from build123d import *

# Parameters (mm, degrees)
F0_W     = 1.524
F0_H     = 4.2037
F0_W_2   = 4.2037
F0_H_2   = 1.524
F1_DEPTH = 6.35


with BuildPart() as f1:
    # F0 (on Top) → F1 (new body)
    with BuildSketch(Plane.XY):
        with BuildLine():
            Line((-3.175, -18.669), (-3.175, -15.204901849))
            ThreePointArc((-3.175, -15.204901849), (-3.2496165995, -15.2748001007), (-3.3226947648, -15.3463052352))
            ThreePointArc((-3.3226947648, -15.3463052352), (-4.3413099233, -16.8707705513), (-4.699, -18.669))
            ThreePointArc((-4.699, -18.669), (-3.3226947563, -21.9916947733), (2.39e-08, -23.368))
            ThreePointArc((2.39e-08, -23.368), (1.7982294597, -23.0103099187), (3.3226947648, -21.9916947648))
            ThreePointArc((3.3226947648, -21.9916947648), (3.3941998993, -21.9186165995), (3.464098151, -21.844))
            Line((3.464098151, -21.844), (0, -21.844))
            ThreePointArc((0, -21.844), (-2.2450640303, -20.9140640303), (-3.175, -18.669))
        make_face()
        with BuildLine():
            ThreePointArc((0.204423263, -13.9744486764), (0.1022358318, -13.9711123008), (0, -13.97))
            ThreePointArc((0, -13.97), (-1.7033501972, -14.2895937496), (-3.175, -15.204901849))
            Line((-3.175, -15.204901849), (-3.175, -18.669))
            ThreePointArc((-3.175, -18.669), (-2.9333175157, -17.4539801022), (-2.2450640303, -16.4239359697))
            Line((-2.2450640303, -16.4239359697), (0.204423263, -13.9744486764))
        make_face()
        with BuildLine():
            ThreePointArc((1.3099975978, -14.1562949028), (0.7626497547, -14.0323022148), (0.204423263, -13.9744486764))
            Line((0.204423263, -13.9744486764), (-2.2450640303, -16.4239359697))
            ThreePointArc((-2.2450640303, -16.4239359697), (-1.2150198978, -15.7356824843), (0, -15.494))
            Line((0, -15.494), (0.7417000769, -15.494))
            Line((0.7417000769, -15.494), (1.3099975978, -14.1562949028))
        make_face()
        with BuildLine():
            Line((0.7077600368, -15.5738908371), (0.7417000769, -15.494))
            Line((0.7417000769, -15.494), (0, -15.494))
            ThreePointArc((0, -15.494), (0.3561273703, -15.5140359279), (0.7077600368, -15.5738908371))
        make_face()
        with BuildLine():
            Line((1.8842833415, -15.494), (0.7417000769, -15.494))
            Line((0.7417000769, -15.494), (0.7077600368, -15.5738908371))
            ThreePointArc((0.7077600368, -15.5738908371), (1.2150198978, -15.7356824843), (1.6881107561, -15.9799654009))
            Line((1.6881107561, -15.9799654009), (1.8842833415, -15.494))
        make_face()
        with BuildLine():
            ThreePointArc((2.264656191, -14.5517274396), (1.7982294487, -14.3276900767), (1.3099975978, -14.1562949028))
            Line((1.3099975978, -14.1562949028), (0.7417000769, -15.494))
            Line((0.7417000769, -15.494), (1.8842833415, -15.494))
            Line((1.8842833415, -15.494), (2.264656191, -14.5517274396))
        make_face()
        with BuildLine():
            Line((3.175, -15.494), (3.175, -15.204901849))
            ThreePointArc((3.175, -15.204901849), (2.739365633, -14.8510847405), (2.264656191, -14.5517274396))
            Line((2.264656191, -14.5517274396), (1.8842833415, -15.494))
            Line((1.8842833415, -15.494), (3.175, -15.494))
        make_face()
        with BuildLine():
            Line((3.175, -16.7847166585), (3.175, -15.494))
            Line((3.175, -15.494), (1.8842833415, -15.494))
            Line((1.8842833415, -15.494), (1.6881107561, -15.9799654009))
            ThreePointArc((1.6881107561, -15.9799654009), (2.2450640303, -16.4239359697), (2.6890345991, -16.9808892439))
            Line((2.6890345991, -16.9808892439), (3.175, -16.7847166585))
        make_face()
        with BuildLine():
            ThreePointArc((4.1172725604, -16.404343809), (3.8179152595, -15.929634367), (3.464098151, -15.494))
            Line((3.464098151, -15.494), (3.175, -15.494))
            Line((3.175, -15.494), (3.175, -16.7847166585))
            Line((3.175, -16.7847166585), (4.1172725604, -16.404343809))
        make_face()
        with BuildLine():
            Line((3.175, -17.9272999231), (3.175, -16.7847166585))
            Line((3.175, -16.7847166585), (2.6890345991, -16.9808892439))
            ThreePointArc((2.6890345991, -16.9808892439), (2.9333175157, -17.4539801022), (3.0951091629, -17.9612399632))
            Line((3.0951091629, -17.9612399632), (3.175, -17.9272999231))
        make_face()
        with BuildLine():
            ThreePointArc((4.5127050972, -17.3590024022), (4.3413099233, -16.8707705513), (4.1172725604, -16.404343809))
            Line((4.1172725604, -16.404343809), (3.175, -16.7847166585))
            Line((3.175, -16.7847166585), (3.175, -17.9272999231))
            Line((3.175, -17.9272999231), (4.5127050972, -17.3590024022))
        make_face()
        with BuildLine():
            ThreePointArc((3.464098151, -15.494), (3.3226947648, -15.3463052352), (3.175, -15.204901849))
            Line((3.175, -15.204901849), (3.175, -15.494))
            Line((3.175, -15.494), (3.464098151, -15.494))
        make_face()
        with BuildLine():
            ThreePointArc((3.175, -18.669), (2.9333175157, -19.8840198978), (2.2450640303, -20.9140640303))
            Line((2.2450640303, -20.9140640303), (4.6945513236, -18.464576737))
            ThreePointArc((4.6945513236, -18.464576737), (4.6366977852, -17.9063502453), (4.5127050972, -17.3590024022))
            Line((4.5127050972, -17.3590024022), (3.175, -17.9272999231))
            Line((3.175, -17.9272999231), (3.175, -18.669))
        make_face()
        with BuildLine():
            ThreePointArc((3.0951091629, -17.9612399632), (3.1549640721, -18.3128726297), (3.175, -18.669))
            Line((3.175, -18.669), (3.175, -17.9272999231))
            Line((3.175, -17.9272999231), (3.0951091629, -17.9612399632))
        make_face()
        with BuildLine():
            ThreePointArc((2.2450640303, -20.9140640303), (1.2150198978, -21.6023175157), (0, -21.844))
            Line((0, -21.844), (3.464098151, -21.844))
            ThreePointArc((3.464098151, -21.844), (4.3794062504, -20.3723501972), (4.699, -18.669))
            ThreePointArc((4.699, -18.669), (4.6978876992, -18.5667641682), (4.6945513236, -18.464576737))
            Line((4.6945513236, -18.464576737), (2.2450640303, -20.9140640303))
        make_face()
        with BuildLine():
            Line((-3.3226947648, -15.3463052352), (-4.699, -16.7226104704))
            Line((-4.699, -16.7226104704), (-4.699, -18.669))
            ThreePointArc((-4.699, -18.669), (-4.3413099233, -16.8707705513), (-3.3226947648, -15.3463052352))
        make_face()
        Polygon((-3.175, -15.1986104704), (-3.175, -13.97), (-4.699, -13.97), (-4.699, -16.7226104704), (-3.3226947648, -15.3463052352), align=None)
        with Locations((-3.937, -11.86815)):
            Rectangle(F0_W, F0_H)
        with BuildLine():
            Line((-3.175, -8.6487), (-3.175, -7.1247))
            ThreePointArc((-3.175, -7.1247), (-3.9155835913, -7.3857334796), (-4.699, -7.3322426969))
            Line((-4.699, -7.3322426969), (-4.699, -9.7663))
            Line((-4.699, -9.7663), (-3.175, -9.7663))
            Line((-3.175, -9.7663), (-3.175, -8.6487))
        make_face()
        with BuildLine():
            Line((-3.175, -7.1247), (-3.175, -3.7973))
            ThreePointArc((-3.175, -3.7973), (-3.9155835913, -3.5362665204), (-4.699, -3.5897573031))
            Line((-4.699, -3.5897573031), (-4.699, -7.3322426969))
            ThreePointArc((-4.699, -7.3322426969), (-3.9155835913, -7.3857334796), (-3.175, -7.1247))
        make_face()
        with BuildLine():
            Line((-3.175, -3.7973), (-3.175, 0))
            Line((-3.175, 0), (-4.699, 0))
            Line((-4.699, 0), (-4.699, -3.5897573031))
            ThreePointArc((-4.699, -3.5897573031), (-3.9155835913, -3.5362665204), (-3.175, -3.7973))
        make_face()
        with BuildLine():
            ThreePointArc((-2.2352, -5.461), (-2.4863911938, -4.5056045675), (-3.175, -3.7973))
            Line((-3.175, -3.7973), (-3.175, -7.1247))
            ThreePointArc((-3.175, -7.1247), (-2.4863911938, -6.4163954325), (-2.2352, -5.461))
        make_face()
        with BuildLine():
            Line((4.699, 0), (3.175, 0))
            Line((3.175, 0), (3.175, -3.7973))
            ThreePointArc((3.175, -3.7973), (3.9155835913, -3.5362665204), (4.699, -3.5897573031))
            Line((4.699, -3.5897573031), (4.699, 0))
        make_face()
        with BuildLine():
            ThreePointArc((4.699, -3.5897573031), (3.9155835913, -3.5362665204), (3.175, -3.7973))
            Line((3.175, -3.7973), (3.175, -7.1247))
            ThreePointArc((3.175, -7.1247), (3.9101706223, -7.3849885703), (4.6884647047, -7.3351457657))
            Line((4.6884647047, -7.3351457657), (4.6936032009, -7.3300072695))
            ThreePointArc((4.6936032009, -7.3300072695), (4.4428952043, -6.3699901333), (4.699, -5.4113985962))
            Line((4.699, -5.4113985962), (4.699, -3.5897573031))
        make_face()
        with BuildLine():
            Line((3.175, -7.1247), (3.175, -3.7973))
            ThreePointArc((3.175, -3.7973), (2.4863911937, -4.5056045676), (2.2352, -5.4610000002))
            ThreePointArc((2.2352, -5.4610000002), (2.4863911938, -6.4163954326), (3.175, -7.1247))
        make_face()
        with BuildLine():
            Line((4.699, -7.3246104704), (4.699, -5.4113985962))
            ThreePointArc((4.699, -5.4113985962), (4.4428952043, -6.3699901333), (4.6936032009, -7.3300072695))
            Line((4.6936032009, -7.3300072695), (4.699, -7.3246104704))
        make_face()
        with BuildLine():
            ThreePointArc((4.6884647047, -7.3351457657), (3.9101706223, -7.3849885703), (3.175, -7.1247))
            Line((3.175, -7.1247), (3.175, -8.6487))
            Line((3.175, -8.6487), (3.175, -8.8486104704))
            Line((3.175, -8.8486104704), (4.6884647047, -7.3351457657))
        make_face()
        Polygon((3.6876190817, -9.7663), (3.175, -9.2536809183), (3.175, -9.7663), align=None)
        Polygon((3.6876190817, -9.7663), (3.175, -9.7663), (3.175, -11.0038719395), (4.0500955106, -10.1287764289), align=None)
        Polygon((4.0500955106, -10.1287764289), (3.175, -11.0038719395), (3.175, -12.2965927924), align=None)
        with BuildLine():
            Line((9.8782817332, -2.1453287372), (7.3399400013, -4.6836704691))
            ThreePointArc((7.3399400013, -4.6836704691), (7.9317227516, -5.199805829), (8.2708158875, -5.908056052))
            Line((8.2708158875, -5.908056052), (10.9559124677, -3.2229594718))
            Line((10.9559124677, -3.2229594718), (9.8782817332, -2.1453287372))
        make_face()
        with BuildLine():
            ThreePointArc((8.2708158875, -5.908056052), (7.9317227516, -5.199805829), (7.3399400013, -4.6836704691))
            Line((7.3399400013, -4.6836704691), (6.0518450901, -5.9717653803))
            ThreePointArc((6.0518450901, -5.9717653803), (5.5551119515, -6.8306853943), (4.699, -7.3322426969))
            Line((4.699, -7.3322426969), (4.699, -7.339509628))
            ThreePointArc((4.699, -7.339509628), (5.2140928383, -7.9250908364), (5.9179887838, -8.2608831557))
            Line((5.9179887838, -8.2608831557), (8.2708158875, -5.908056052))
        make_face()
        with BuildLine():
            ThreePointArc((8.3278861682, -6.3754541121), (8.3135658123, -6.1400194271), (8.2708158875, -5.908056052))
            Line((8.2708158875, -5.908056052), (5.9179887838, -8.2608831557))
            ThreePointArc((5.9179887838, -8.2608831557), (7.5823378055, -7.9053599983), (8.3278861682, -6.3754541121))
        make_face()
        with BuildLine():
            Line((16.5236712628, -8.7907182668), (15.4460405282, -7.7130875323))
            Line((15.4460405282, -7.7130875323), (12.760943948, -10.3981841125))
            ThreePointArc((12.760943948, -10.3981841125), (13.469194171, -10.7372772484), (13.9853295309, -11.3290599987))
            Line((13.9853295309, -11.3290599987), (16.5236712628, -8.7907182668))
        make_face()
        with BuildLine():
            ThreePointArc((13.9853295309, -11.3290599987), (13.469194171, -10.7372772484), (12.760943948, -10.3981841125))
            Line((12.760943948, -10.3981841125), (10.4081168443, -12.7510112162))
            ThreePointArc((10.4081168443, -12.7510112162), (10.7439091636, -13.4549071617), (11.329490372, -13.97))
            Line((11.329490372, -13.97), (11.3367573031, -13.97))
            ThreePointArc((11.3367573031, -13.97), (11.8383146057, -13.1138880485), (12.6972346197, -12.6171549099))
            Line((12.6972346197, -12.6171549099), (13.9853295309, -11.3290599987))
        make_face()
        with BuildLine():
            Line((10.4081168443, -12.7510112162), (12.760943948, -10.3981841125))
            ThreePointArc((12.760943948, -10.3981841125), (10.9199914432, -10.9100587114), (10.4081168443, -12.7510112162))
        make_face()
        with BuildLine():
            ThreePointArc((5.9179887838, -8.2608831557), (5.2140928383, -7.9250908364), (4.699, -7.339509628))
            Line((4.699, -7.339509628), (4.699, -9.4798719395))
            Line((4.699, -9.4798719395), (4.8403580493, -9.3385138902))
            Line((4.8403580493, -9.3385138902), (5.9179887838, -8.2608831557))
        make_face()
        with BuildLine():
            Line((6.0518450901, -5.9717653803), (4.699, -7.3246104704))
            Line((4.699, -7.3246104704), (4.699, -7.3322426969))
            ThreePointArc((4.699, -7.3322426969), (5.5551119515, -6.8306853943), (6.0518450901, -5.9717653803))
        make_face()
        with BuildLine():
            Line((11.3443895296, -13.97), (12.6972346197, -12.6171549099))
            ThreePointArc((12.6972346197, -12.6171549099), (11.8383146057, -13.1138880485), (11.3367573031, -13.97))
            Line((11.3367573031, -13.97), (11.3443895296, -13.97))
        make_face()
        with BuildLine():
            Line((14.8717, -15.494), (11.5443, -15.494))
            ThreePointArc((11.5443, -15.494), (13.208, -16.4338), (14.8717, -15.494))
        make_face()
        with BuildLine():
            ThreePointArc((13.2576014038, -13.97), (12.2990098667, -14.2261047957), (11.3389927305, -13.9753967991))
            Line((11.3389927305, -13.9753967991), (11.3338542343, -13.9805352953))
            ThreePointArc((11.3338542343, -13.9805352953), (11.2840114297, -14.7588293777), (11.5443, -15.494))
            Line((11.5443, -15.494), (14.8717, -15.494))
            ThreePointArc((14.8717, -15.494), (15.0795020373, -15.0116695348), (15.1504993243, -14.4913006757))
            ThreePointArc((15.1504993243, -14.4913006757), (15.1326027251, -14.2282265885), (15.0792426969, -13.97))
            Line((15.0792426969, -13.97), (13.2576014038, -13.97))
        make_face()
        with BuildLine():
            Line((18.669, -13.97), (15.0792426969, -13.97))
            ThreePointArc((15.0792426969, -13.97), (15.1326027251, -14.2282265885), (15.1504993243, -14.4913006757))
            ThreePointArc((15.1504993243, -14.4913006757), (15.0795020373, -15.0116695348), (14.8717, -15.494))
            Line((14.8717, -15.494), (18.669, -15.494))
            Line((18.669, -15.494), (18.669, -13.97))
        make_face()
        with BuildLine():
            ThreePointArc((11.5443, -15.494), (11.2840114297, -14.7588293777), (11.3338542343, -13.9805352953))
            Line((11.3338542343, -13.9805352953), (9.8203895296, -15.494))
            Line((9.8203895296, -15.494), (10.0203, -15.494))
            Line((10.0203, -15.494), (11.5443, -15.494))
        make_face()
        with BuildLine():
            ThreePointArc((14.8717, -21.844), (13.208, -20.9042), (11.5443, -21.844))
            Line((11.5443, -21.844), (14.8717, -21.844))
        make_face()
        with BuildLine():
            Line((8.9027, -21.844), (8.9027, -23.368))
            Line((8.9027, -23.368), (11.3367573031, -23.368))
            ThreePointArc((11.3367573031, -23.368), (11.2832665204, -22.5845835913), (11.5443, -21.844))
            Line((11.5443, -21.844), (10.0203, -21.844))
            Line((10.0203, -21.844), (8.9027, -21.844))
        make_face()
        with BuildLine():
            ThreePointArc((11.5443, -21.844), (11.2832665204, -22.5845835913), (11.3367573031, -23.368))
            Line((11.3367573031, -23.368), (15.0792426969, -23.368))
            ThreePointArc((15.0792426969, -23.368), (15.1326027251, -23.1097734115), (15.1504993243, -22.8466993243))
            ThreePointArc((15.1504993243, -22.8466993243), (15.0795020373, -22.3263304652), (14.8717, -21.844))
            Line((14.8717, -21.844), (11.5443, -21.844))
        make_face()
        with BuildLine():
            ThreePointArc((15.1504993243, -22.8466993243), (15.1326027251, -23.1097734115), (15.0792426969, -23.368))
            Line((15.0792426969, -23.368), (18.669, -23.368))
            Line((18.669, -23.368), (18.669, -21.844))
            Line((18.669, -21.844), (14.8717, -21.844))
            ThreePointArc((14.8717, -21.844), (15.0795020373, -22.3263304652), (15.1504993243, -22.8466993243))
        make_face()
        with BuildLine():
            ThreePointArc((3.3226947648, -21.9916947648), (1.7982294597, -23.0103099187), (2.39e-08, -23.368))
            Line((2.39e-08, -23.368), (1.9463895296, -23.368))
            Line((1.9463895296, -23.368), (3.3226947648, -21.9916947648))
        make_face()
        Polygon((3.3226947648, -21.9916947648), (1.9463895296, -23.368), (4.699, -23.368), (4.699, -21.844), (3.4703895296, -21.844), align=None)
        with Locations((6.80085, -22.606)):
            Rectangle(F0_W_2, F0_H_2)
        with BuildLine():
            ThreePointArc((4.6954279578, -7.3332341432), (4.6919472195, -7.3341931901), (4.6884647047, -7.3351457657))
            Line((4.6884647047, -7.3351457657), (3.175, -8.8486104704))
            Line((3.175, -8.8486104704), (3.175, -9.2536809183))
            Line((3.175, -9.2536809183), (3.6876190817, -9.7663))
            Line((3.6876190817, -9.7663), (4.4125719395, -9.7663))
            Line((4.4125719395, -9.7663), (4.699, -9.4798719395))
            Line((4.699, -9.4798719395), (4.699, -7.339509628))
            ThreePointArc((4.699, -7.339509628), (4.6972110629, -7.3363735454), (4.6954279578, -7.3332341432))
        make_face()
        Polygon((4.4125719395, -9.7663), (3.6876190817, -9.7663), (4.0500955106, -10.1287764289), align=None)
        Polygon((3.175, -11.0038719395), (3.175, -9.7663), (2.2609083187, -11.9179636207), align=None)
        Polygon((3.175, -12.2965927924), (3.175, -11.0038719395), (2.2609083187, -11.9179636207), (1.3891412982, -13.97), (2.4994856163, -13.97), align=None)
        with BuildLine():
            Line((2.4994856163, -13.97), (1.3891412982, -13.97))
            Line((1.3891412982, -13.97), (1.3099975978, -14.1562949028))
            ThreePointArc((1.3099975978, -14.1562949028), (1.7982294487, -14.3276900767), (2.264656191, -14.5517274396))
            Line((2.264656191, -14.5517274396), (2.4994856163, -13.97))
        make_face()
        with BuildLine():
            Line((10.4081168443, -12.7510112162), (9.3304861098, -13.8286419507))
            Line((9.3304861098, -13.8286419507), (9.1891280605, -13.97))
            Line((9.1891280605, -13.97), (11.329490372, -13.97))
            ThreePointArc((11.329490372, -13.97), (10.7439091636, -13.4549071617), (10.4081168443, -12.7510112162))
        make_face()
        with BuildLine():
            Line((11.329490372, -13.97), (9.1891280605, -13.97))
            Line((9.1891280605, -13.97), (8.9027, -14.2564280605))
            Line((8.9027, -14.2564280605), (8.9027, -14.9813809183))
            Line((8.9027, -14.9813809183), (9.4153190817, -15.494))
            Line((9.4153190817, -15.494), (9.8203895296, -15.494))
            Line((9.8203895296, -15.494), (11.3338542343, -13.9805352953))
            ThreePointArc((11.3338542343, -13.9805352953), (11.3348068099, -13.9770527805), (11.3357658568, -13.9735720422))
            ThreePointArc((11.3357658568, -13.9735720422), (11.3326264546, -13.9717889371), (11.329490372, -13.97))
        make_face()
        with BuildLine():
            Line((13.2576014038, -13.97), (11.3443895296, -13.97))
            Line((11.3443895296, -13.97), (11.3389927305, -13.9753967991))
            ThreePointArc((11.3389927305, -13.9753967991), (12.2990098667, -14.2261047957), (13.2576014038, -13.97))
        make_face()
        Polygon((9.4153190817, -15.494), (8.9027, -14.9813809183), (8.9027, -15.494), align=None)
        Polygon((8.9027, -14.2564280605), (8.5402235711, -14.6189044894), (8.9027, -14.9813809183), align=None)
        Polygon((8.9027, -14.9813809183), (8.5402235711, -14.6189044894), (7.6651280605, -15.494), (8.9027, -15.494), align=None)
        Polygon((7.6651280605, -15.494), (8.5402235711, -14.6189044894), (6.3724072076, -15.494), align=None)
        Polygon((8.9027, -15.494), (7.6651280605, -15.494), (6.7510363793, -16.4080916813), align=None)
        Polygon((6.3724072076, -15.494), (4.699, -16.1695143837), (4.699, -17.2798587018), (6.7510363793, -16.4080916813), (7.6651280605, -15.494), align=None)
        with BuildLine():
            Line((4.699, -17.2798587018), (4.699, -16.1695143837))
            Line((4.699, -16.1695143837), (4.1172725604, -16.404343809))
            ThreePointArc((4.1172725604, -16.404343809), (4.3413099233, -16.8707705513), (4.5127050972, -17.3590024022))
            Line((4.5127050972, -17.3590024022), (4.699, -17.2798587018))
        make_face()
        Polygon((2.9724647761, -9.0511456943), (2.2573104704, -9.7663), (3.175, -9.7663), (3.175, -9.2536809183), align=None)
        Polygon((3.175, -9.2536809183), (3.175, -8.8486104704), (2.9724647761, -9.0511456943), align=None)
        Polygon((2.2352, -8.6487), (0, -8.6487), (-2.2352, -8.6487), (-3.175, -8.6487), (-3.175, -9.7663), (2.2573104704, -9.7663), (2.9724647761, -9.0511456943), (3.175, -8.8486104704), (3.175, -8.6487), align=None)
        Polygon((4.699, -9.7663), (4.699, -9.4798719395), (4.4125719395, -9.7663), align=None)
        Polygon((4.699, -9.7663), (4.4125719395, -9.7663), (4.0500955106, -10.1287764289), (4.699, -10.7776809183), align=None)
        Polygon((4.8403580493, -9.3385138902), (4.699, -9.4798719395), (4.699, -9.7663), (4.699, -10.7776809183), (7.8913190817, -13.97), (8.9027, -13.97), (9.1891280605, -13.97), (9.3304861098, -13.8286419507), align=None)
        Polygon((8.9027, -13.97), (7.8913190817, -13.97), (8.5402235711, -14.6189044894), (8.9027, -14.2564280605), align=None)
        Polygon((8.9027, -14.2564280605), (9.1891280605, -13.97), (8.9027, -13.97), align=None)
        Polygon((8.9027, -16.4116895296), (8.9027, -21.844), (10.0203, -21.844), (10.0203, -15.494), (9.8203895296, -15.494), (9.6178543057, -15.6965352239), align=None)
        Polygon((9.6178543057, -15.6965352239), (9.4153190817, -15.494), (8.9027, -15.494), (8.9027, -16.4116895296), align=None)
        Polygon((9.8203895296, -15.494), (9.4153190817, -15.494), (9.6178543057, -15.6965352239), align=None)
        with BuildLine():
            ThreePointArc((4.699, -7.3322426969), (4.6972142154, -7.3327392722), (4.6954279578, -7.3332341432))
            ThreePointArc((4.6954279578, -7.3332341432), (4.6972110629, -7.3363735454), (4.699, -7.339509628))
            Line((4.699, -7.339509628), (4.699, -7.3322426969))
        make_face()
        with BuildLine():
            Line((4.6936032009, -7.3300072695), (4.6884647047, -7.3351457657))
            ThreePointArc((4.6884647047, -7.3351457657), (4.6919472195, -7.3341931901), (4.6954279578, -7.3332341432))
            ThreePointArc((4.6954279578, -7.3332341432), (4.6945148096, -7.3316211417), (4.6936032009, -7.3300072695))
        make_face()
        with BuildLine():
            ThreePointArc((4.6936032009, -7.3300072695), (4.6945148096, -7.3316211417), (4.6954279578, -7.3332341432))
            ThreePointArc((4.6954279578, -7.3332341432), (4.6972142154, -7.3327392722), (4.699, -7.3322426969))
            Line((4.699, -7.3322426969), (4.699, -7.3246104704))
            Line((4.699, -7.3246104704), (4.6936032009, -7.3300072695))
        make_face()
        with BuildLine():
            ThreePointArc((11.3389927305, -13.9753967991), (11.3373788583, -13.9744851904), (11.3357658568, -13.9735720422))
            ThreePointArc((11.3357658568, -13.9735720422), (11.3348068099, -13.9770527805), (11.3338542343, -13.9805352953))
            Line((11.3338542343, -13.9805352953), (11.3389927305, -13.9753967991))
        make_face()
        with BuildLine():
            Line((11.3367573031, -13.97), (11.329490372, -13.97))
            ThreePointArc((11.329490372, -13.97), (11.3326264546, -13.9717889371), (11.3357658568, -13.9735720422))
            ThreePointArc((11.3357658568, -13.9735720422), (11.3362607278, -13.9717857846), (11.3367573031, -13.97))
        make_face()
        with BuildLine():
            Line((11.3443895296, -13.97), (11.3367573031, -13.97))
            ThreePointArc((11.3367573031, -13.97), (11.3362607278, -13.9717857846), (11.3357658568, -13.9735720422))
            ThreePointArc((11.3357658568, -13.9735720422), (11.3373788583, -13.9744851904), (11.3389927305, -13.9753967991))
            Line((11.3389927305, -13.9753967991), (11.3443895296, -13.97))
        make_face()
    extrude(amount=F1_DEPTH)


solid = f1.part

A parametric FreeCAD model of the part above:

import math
import FreeCAD as App
import Part
import Sketcher
from FreeCAD import Vector
Q = App.Units.Quantity

doc = App.newDocument("Part")
params = doc.addObject("Spreadsheet::Sheet", "Params")
for row, (alias, value) in enumerate([
    ("sketch1_radius", "0.185 in"),
    ("sketch1_radius2", "0.125 in"),
    ("sketch1_length", "0.06 in"),
    ("sketch1_length2", "0.25 in"),
    ("sketch1_width", "0.735 in"),
    ("pad1_length", "0.25 in"),
], start=1):
    params.set(f"A{row}", alias)
    params.set(f"B{row}", "=" + value)
    params.setAlias(f"B{row}", alias)

body = doc.addObject("PartDesign::Body", "Body")

sketch1 = body.newObject("Sketcher::SketchObject", "Sketch")
sketch1.AttachmentSupport = (doc.getObject("XY_Plane"), [""])
sketch1.MapMode = "FlatFace"
sketch1.addGeometry(Part.LineSegment(Vector(18.67, -13.97, 0), Vector(11.34, -13.97, 0)), False)
sketch1.addGeometry(Part.LineSegment(Vector(11.34, -13.97, 0), Vector(16.52, -8.79, 0)), False)
sketch1.addGeometry(Part.LineSegment(Vector(16.52, -8.79, 0), Vector(15.45, -7.71, 0)), False)
sketch1.addGeometry(Part.LineSegment(Vector(15.45, -7.71, 0), Vector(12.76, -10.4, 0)), False)
sketch1.addGeometry(Part.ArcOfCircle(Part.Circle(Vector(12.29, -12.28, 0), Vector(0, 0, 1), 1.94), math.radians(76), math.radians(194)), False)
sketch1.addGeometry(Part.LineSegment(Vector(10.41, -12.75, 0), Vector(9.33, -13.83, 0)), False)
sketch1.addGeometry(Part.LineSegment(Vector(9.33, -13.83, 0), Vector(4.84, -9.34, 0)), False)
sketch1.addGeometry(Part.LineSegment(Vector(4.84, -9.34, 0), Vector(5.92, -8.26, 0)), False)
sketch1.addGeometry(Part.ArcOfCircle(Part.Circle(Vector(6.39, -6.38, 0), Vector(0, 0, 1), 1.94), math.radians(-104), math.radians(0)), False)
sketch1.addGeometry(Part.ArcOfCircle(Part.Circle(Vector(6.39, -6.38, 0), Vector(0, 0, 1), 1.94), math.radians(0), math.radians(13.92)), False)
sketch1.addGeometry(Part.LineSegment(Vector(8.27, -5.91, 0), Vector(10.96, -3.22, 0)), False)
sketch1.addGeometry(Part.LineSegment(Vector(10.96, -3.22, 0), Vector(9.88, -2.15, 0)), False)
sketch1.addGeometry(Part.LineSegment(Vector(9.88, -2.15, 0), Vector(4.7, -7.32, 0)), False)
sketch1.addGeometry(Part.LineSegment(Vector(4.7, -7.32, 0), Vector(4.7, 0, 0)), False)
sketch1.addGeometry(Part.LineSegment(Vector(4.7, 0, 0), Vector(3.17, 0, 0)), False)
sketch1.addGeometry(Part.LineSegment(Vector(3.17, 0, 0), Vector(3.17, -3.8, 0)), False)
sketch1.addGeometry(Part.ArcOfCircle(Part.Circle(Vector(4.18, -5.46, 0), Vector(0, 0, 1), 1.94), math.radians(121), math.radians(180)), False)
sketch1.addGeometry(Part.ArcOfCircle(Part.Circle(Vector(4.18, -5.46, 0), Vector(0, 0, 1), 1.94), math.radians(180), math.radians(239)), False)
sketch1.addGeometry(Part.LineSegment(Vector(3.17, -7.12, 0), Vector(3.17, -8.65, 0)), False)
sketch1.addGeometry(Part.LineSegment(Vector(3.17, -8.65, 0), Vector(-3.17, -8.65, 0)), False)
sketch1.addGeometry(Part.LineSegment(Vector(-3.17, -8.65, 0), Vector(-3.17, -7.12, 0)), False)
sketch1.addGeometry(Part.ArcOfCircle(Part.Circle(Vector(-4.18, -5.46, 0), Vector(0, 0, 1), 1.94), math.radians(-59), math.radians(0)), False)
sketch1.addGeometry(Part.ArcOfCircle(Part.Circle(Vector(-4.18, -5.46, 0), Vector(0, 0, 1), 1.94), math.radians(0), math.radians(59)), False)
sketch1.addGeometry(Part.LineSegment(Vector(-3.17, -3.8, 0), Vector(-3.17, 0, 0)), False)
sketch1.addGeometry(Part.LineSegment(Vector(-3.17, 0, 0), Vector(-4.7, 0, 0)), False)
sketch1.addGeometry(Part.LineSegment(Vector(-4.7, 0, 0), Vector(-4.7, -18.67, 0)), False)
sketch1.addGeometry(Part.ArcOfCircle(Part.Circle(Vector(0, -18.67, 0), Vector(0, 0, 1), 4.7), math.radians(180), math.radians(270)), False)
sketch1.addGeometry(Part.LineSegment(Vector(0, -23.37, 0), Vector(18.67, -23.37, 0)), False)
sketch1.addGeometry(Part.LineSegment(Vector(18.67, -23.37, 0), Vector(18.67, -21.84, 0)), False)
sketch1.addGeometry(Part.LineSegment(Vector(18.67, -21.84, 0), Vector(14.87, -21.84, 0)), False)
sketch1.addGeometry(Part.ArcOfCircle(Part.Circle(Vector(13.21, -22.85, 0), Vector(0, 0, 1), 1.94), math.radians(31), math.radians(149)), False)
sketch1.addGeometry(Part.LineSegment(Vector(11.54, -21.84, 0), Vector(10.02, -21.84, 0)), False)
sketch1.addGeometry(Part.LineSegment(Vector(10.02, -21.84, 0), Vector(10.02, -15.49, 0)), False)
sketch1.addGeometry(Part.LineSegment(Vector(10.02, -15.49, 0), Vector(11.54, -15.49, 0)), False)
sketch1.addGeometry(Part.ArcOfCircle(Part.Circle(Vector(13.21, -14.49, 0), Vector(0, 0, 1), 1.94), math.radians(-149), math.radians(-31)), False)
sketch1.addGeometry(Part.LineSegment(Vector(14.87, -15.49, 0), Vector(18.67, -15.49, 0)), False)
sketch1.addGeometry(Part.LineSegment(Vector(18.67, -15.49, 0), Vector(18.67, -13.97, 0)), False)
sketch1.addGeometry(Part.ArcOfCircle(Part.Circle(Vector(0, -18.67, 0), Vector(0, 0, 1), 3.17), math.radians(180), math.radians(270)), False)
sketch1.addGeometry(Part.ArcOfCircle(Part.Circle(Vector(0, -18.67, 0), Vector(0, 0, 1), 3.17), math.radians(135), math.radians(180)), False)
sketch1.addGeometry(Part.ArcOfCircle(Part.Circle(Vector(0, -18.67, 0), Vector(0, 0, 1), 3.17), math.radians(90), math.radians(135)), False)
sketch1.addGeometry(Part.ArcOfCircle(Part.Circle(Vector(0, -18.67, 0), Vector(0, 0, 1), 3.17), math.radians(77.12), math.radians(90)), False)
sketch1.addGeometry(Part.ArcOfCircle(Part.Circle(Vector(0, -18.67, 0), Vector(0, 0, 1), 3.17), math.radians(57.88), math.radians(77.12)), False)
sketch1.addGeometry(Part.ArcOfCircle(Part.Circle(Vector(0, -18.67, 0), Vector(0, 0, 1), 3.17), math.radians(32), math.radians(58)), False)
sketch1.addGeometry(Part.ArcOfCircle(Part.Circle(Vector(0, -18.67, 0), Vector(0, 0, 1), 3.17), math.radians(12.88), math.radians(32.12)), False)
sketch1.addGeometry(Part.ArcOfCircle(Part.Circle(Vector(0, -18.67, 0), Vector(0, 0, 1), 3.17), math.radians(0), math.radians(12.88)), False)
sketch1.addGeometry(Part.ArcOfCircle(Part.Circle(Vector(0, -18.67, 0), Vector(0, 0, 1), 3.17), math.radians(-45), math.radians(0)), False)
sketch1.addGeometry(Part.ArcOfCircle(Part.Circle(Vector(0, -18.67, 0), Vector(0, 0, 1), 3.17), math.radians(-90), math.radians(-45)), False)
sketch1.addGeometry(Part.LineSegment(Vector(6.75, -16.41, 0), Vector(8.9, -15.49, 0)), False)
sketch1.addGeometry(Part.LineSegment(Vector(8.9, -15.49, 0), Vector(8.9, -21.84, 0)), False)
sketch1.addGeometry(Part.LineSegment(Vector(8.9, -21.84, 0), Vector(3.47, -21.84, 0)), False)
sketch1.addGeometry(Part.LineSegment(Vector(3.47, -21.84, 0), Vector(3.32, -21.99, 0)), False)
sketch1.addGeometry(Part.ArcOfCircle(Part.Circle(Vector(0, -18.67, 0), Vector(0, 0, 1), 4.7), math.radians(-45), math.radians(-42.51)), False)
sketch1.addGeometry(Part.ArcOfCircle(Part.Circle(Vector(0, -18.67, 0), Vector(0, 0, 1), 4.7), math.radians(-43), math.radians(0)), False)
sketch1.addGeometry(Part.ArcOfCircle(Part.Circle(Vector(0, -18.67, 0), Vector(0, 0, 1), 4.7), math.radians(0), math.radians(2.49)), False)
sketch1.addGeometry(Part.ArcOfCircle(Part.Circle(Vector(0, -18.67, 0), Vector(0, 0, 1), 4.7), math.radians(2.49), math.radians(16.19)), False)
sketch1.addGeometry(Part.LineSegment(Vector(4.51, -17.36, 0), Vector(4.7, -17.28, 0)), False)
sketch1.addGeometry(Part.LineSegment(Vector(4.7, -17.28, 0), Vector(6.75, -16.41, 0)), False)
sketch1.addGeometry(Part.LineSegment(Vector(-3.17, -15.2, 0), Vector(-3.17, -9.77, 0)), False)
sketch1.addGeometry(Part.LineSegment(Vector(-3.17, -9.77, 0), Vector(3.17, -9.77, 0)), False)
sketch1.addGeometry(Part.LineSegment(Vector(3.17, -9.77, 0), Vector(2.26, -11.92, 0)), False)
sketch1.addGeometry(Part.LineSegment(Vector(2.26, -11.92, 0), Vector(1.39, -13.97, 0)), False)
sketch1.addGeometry(Part.LineSegment(Vector(1.39, -13.97, 0), Vector(1.31, -14.16, 0)), False)
sketch1.addGeometry(Part.ArcOfCircle(Part.Circle(Vector(0, -18.67, 0), Vector(0, 0, 1), 4.7), math.radians(73.81), math.radians(87.51)), False)
sketch1.addGeometry(Part.ArcOfCircle(Part.Circle(Vector(0, -18.67, 0), Vector(0, 0, 1), 4.7), math.radians(87.51), math.radians(90)), False)
sketch1.addGeometry(Part.ArcOfCircle(Part.Circle(Vector(0, -18.67, 0), Vector(0, 0, 1), 4.7), math.radians(90), math.radians(133)), False)
sketch1.addGeometry(Part.ArcOfCircle(Part.Circle(Vector(0, -18.67, 0), Vector(0, 0, 1), 4.7), math.radians(132.51), math.radians(135)), False)
sketch1.addGeometry(Part.LineSegment(Vector(-3.32, -15.35, 0), Vector(-3.17, -15.2, 0)), False)
sketch1.addGeometry(Part.LineSegment(Vector(4.05, -10.13, 0), Vector(8.54, -14.62, 0)), False)
sketch1.addGeometry(Part.LineSegment(Vector(8.54, -14.62, 0), Vector(6.37, -15.49, 0)), False)
sketch1.addGeometry(Part.LineSegment(Vector(6.37, -15.49, 0), Vector(4.7, -16.17, 0)), False)
sketch1.addGeometry(Part.LineSegment(Vector(4.7, -16.17, 0), Vector(4.12, -16.4, 0)), False)
sketch1.addGeometry(Part.ArcOfCircle(Part.Circle(Vector(0, -18.67, 0), Vector(0, 0, 1), 4.7), math.radians(28.81), math.radians(42.51)), False)
sketch1.addGeometry(Part.ArcOfCircle(Part.Circle(Vector(0, -18.67, 0), Vector(0, 0, 1), 4.7), math.radians(42.51), math.radians(47.49)), False)
sketch1.addGeometry(Part.ArcOfCircle(Part.Circle(Vector(0, -18.67, 0), Vector(0, 0, 1), 4.7), math.radians(47.49), math.radians(61.19)), False)
sketch1.addGeometry(Part.LineSegment(Vector(2.26, -14.55, 0), Vector(2.5, -13.97, 0)), False)
sketch1.addGeometry(Part.LineSegment(Vector(2.5, -13.97, 0), Vector(3.17, -12.3, 0)), False)
sketch1.addGeometry(Part.LineSegment(Vector(3.17, -12.3, 0), Vector(4.05, -10.13, 0)), False)
sketch1.addConstraint(Sketcher.Constraint("Coincident", 0, 2, 1, 1))
sketch1.addConstraint(Sketcher.Constraint("Coincident", 1, 2, 2, 1))
sketch1.addConstraint(Sketcher.Constraint("Coincident", 2, 2, 3, 1))
sketch1.addConstraint(Sketcher.Constraint("Coincident", 3, 2, 4, 1))
sketch1.addConstraint(Sketcher.Constraint("Coincident", 4, 2, 5, 1))
sketch1.addConstraint(Sketcher.Constraint("Coincident", 5, 2, 6, 1))
sketch1.addConstraint(Sketcher.Constraint("Coincident", 6, 2, 7, 1))
sketch1.addConstraint(Sketcher.Constraint("Coincident", 7, 2, 8, 1))
sketch1.addConstraint(Sketcher.Constraint("Tangent", 8, 2, 9, 1))
sketch1.addConstraint(Sketcher.Constraint("Coincident", 9, 2, 10, 1))
sketch1.addConstraint(Sketcher.Constraint("Coincident", 10, 2, 11, 1))
sketch1.addConstraint(Sketcher.Constraint("Coincident", 11, 2, 12, 1))
sketch1.addConstraint(Sketcher.Constraint("Coincident", 12, 2, 13, 1))
sketch1.addConstraint(Sketcher.Constraint("Coincident", 13, 2, 14, 1))
sketch1.addConstraint(Sketcher.Constraint("Coincident", 14, 2, 15, 1))
sketch1.addConstraint(Sketcher.Constraint("Coincident", 15, 2, 16, 1))
sketch1.addConstraint(Sketcher.Constraint("Tangent", 16, 2, 17, 1))
sketch1.addConstraint(Sketcher.Constraint("Coincident", 17, 2, 18, 1))
sketch1.addConstraint(Sketcher.Constraint("Coincident", 18, 2, 19, 1))
sketch1.addConstraint(Sketcher.Constraint("Coincident", 19, 2, 20, 1))
sketch1.addConstraint(Sketcher.Constraint("Coincident", 20, 2, 21, 1))
sketch1.addConstraint(Sketcher.Constraint("Tangent", 21, 2, 22, 1))
sketch1.addConstraint(Sketcher.Constraint("Coincident", 22, 2, 23, 1))
sketch1.addConstraint(Sketcher.Constraint("Coincident", 23, 2, 24, 1))
sketch1.addConstraint(Sketcher.Constraint("Coincident", 24, 2, 25, 1))
sketch1.addConstraint(Sketcher.Constraint("Tangent", 25, 2, 26, 1))
sketch1.addConstraint(Sketcher.Constraint("Tangent", 26, 2, 27, 1))
sketch1.addConstraint(Sketcher.Constraint("Coincident", 27, 2, 28, 1))
sketch1.addConstraint(Sketcher.Constraint("Coincident", 28, 2, 29, 1))
sketch1.addConstraint(Sketcher.Constraint("Coincident", 29, 2, 30, 1))
sketch1.addConstraint(Sketcher.Constraint("Coincident", 30, 2, 31, 1))
sketch1.addConstraint(Sketcher.Constraint("Coincident", 31, 2, 32, 1))
sketch1.addConstraint(Sketcher.Constraint("Coincident", 32, 2, 33, 1))
sketch1.addConstraint(Sketcher.Constraint("Coincident", 33, 2, 34, 1))
sketch1.addConstraint(Sketcher.Constraint("Coincident", 34, 2, 35, 1))
sketch1.addConstraint(Sketcher.Constraint("Coincident", 35, 2, 36, 1))
sketch1.addConstraint(Sketcher.Constraint("Coincident", 36, 2, 0, 1))
sketch1.addConstraint(Sketcher.Constraint("Tangent", 37, 1, 38, 2))
sketch1.addConstraint(Sketcher.Constraint("Tangent", 38, 1, 39, 2))
sketch1.addConstraint(Sketcher.Constraint("Tangent", 39, 1, 40, 2))
sketch1.addConstraint(Sketcher.Constraint("Tangent", 40, 1, 41, 2))
sketch1.addConstraint(Sketcher.Constraint("Tangent", 41, 1, 42, 2))
sketch1.addConstraint(Sketcher.Constraint("Tangent", 42, 1, 43, 2))
sketch1.addConstraint(Sketcher.Constraint("Tangent", 43, 1, 44, 2))
sketch1.addConstraint(Sketcher.Constraint("Tangent", 44, 1, 45, 2))
sketch1.addConstraint(Sketcher.Constraint("Tangent", 45, 1, 46, 2))
sketch1.addConstraint(Sketcher.Constraint("Tangent", 46, 1, 37, 2))
sketch1.addConstraint(Sketcher.Constraint("Coincident", 47, 2, 48, 1))
sketch1.addConstraint(Sketcher.Constraint("Coincident", 48, 2, 49, 1))
sketch1.addConstraint(Sketcher.Constraint("Coincident", 49, 2, 50, 1))
sketch1.addConstraint(Sketcher.Constraint("Tangent", 50, 2, 51, 1))
sketch1.addConstraint(Sketcher.Constraint("Tangent", 51, 2, 52, 1))
sketch1.addConstraint(Sketcher.Constraint("Tangent", 52, 2, 53, 1))
sketch1.addConstraint(Sketcher.Constraint("Tangent", 53, 2, 54, 1))
sketch1.addConstraint(Sketcher.Constraint("Coincident", 54, 2, 55, 1))
sketch1.addConstraint(Sketcher.Constraint("Coincident", 55, 2, 56, 1))
sketch1.addConstraint(Sketcher.Constraint("Coincident", 56, 2, 47, 1))
sketch1.addConstraint(Sketcher.Constraint("Coincident", 57, 2, 58, 1))
sketch1.addConstraint(Sketcher.Constraint("Coincident", 58, 2, 59, 1))
sketch1.addConstraint(Sketcher.Constraint("Coincident", 59, 2, 60, 1))
sketch1.addConstraint(Sketcher.Constraint("Coincident", 60, 2, 61, 1))
sketch1.addConstraint(Sketcher.Constraint("Coincident", 61, 2, 62, 1))
sketch1.addConstraint(Sketcher.Constraint("Tangent", 62, 2, 63, 1))
sketch1.addConstraint(Sketcher.Constraint("Tangent", 63, 2, 64, 1))
sketch1.addConstraint(Sketcher.Constraint("Tangent", 64, 2, 65, 1))
sketch1.addConstraint(Sketcher.Constraint("Tangent", 65, 2, 66, 1))
sketch1.addConstraint(Sketcher.Constraint("Coincident", 66, 2, 57, 1))
sketch1.addConstraint(Sketcher.Constraint("Coincident", 67, 2, 68, 1))
sketch1.addConstraint(Sketcher.Constraint("Coincident", 68, 2, 69, 1))
sketch1.addConstraint(Sketcher.Constraint("Coincident", 69, 2, 70, 1))
sketch1.addConstraint(Sketcher.Constraint("Coincident", 70, 2, 71, 1))
sketch1.addConstraint(Sketcher.Constraint("Tangent", 71, 2, 72, 1))
sketch1.addConstraint(Sketcher.Constraint("Tangent", 72, 2, 73, 1))
sketch1.addConstraint(Sketcher.Constraint("Coincident", 73, 2, 74, 1))
sketch1.addConstraint(Sketcher.Constraint("Coincident", 74, 2, 75, 1))
sketch1.addConstraint(Sketcher.Constraint("Coincident", 75, 2, 76, 1))
sketch1.addConstraint(Sketcher.Constraint("Coincident", 76, 2, 67, 1))
sketch1.addConstraint(Sketcher.Constraint("Horizontal", 0))
sketch1.addConstraint(Sketcher.Constraint("Vertical", 13))
sketch1.addConstraint(Sketcher.Constraint("Horizontal", 14))
sketch1.addConstraint(Sketcher.Constraint("Vertical", 15))
sketch1.addConstraint(Sketcher.Constraint("Vertical", 18))
sketch1.addConstraint(Sketcher.Constraint("Horizontal", 19))
sketch1.addConstraint(Sketcher.Constraint("Vertical", 20))
sketch1.addConstraint(Sketcher.Constraint("Vertical", 23))
sketch1.addConstraint(Sketcher.Constraint("Horizontal", 24))
sketch1.addConstraint(Sketcher.Constraint("Vertical", 25))
sketch1.addConstraint(Sketcher.Constraint("Horizontal", 27))
sketch1.addConstraint(Sketcher.Constraint("Vertical", 28))
sketch1.addConstraint(Sketcher.Constraint("Horizontal", 29))
sketch1.addConstraint(Sketcher.Constraint("Horizontal", 31))
sketch1.addConstraint(Sketcher.Constraint("Vertical", 32))
sketch1.addConstraint(Sketcher.Constraint("Horizontal", 33))
sketch1.addConstraint(Sketcher.Constraint("Horizontal", 35))
sketch1.addConstraint(Sketcher.Constraint("Vertical", 36))
sketch1.addConstraint(Sketcher.Constraint("Vertical", 48))
sketch1.addConstraint(Sketcher.Constraint("Horizontal", 49))
sketch1.addConstraint(Sketcher.Constraint("Vertical", 57))
sketch1.addConstraint(Sketcher.Constraint("Horizontal", 58))
sketch1.addConstraint(Sketcher.Constraint("Coincident", 37, 3, 26, 3))
sketch1.addConstraint(Sketcher.Constraint("Coincident", 39, 3, 26, 3))
sketch1.addConstraint(Sketcher.Constraint("Coincident", 41, 3, 26, 3))
sketch1.addConstraint(Sketcher.Constraint("Coincident", 43, 3, 26, 3))
sketch1.addConstraint(Sketcher.Constraint("Coincident", 51, 3, 26, 3))
sketch1.addConstraint(Sketcher.Constraint("Coincident", 53, 3, 26, 3))
sketch1.addConstraint(Sketcher.Constraint("Coincident", 62, 3, 26, 3))
sketch1.addConstraint(Sketcher.Constraint("Coincident", 64, 3, 26, 3))
sketch1.addConstraint(Sketcher.Constraint("Coincident", 71, 3, 26, 3))
sketch1.addConstraint(Sketcher.Constraint("Coincident", 73, 3, 26, 3))
sketch1.addConstraint(Sketcher.Constraint("Equal", 4, 8))
sketch1.addConstraint(Sketcher.Constraint("Equal", 8, 9))
sketch1.addConstraint(Sketcher.Constraint("Equal", 9, 16))
sketch1.addConstraint(Sketcher.Constraint("Equal", 16, 17))
sketch1.addConstraint(Sketcher.Constraint("Equal", 17, 21))
sketch1.addConstraint(Sketcher.Constraint("Equal", 21, 22))
sketch1.addConstraint(Sketcher.Constraint("Equal", 22, 30))
sketch1.addConstraint(Sketcher.Constraint("Equal", 30, 34))
sketch1.addConstraint(Sketcher.Constraint("Equal", 43, 44))
sketch1.addConstraint(Sketcher.Constraint("Equal", 26, 51))
sketch1.addConstraint(Sketcher.Constraint("Equal", 53, 54))
sketch1.addConstraint(Sketcher.Constraint("Equal", 54, 62))
sketch1.addConstraint(Sketcher.Constraint("Equal", 64, 65))
sketch1.addConstraint(Sketcher.Constraint("Equal", 65, 71))
sketch1.addConstraint(Sketcher.Constraint("Symmetric", 14, 2, 23, 2, -1, 1))
sketch1.addConstraint(Sketcher.Constraint("Symmetric", 16, 3, 21, 3, -2))
sketch1.addConstraint(Sketcher.Constraint("Symmetric", 13, 2, 24, 2, -2))
sketch1.addConstraint(Sketcher.Constraint("Symmetric", 37, 1, 44, 1, -2))
sketch1.addConstraint(Sketcher.Constraint("PointOnObject", 39, 1, -2))
sketch1.addConstraint(Sketcher.Constraint("PointOnObject", 46, 1, -2))
sketch1.addConstraint(Sketcher.Constraint("PointOnObject", 63, 2, -2))
sketch1.addConstraint(Sketcher.Constraint("Perpendicular", 1, 2))
sketch1.addConstraint(Sketcher.Constraint("Perpendicular", 2, 3))
sketch1.addConstraint(Sketcher.Constraint("Parallel", 3, 5))
sketch1.addConstraint(Sketcher.Constraint("Perpendicular", 5, 6))
sketch1.addConstraint(Sketcher.Constraint("Perpendicular", 6, 7))
sketch1.addConstraint(Sketcher.Constraint("Parallel", 7, 10))
sketch1.addConstraint(Sketcher.Constraint("Perpendicular", 10, 11))
sketch1.addConstraint(Sketcher.Constraint("Perpendicular", 11, 12))
sketch1.addConstraint(Sketcher.Constraint("Parallel", 12, 50))
sketch1.addConstraint(Sketcher.Constraint("Parallel", 47, 55))
sketch1.addConstraint(Sketcher.Constraint("Parallel", 55, 56))
sketch1.addConstraint(Sketcher.Constraint("Parallel", 59, 60))
sketch1.addConstraint(Sketcher.Constraint("Parallel", 60, 61))
sketch1.addConstraint(Sketcher.Constraint("Parallel", 50, 66))
sketch1.addConstraint(Sketcher.Constraint("Perpendicular", 66, 67))
sketch1.addConstraint(Sketcher.Constraint("Parallel", 68, 69))
sketch1.addConstraint(Sketcher.Constraint("Parallel", 69, 70))
sketch1.addConstraint(Sketcher.Constraint("Parallel", 74, 75))
sketch1.addConstraint(Sketcher.Constraint("Parallel", 75, 76))
sketch1.addConstraint(Sketcher.Constraint("Horizontal", 9, 3, 8, 2))
sketch1.addConstraint(Sketcher.Constraint("Horizontal", 22, 3, 16, 2))
sketch1.addConstraint(Sketcher.Constraint("Horizontal", 17, 2, 20, 2))
sketch1.addConstraint(Sketcher.Constraint("Horizontal", 16, 2, 21, 2))
sketch1.addConstraint(Sketcher.Constraint("Horizontal", 29, 2, 30, 2))
sketch1.addConstraint(Sketcher.Constraint("Horizontal", 33, 2, 34, 2))
sketch1.addConstraint(Sketcher.Constraint("Horizontal", 25, 2, 37, 1))
sketch1.addConstraint(Sketcher.Constraint("Horizontal", 35, 2, 39, 1))
sketch1.addConstraint(Sketcher.Constraint("Horizontal", 31, 2, 46, 1))
sketch1.addConstraint(Sketcher.Constraint("Horizontal", 39, 1, 47, 2))
sketch1.addConstraint(Sketcher.Constraint("Horizontal", 46, 1, 48, 2))
sketch1.addConstraint(Sketcher.Constraint("Horizontal", 49, 2, 51, 2))
sketch1.addConstraint(Sketcher.Constraint("Horizontal", 44, 1, 52, 2))
sketch1.addConstraint(Sketcher.Constraint("Horizontal", 36, 2, 60, 2))
sketch1.addConstraint(Sketcher.Constraint("Horizontal", 60, 2, 63, 2))
sketch1.addConstraint(Sketcher.Constraint("Horizontal", 47, 2, 68, 2))
sketch1.addConstraint(Sketcher.Constraint("Horizontal", 68, 2, 71, 2))
sketch1.addConstraint(Sketcher.Constraint("Horizontal", 64, 2, 72, 2))
sketch1.addConstraint(Sketcher.Constraint("Horizontal", 63, 2, 74, 2))
sketch1.addConstraint(Sketcher.Constraint("Vertical", 30, 3, 34, 3))
sketch1.addConstraint(Sketcher.Constraint("Vertical", 15, 2, 17, 2))
sketch1.addConstraint(Sketcher.Constraint("Vertical", 30, 2, 33, 2))
sketch1.addConstraint(Sketcher.Constraint("Vertical", 28, 2, 35, 2))
sketch1.addConstraint(Sketcher.Constraint("Vertical", 23, 2, 37, 1))
sketch1.addConstraint(Sketcher.Constraint("Vertical", 52, 2, 55, 2))
sketch1.addConstraint(Sketcher.Constraint("Vertical", 37, 1, 57, 2))
sketch1.addConstraint(Sketcher.Constraint("Vertical", 44, 1, 58, 2))
sketch1.addConstraint(Sketcher.Constraint("Vertical", 57, 2, 64, 2))
sketch1.addConstraint(Sketcher.Constraint("Vertical", 55, 2, 69, 2))
sketch1.addConstraint(Sketcher.Constraint("Vertical", 72, 2, 75, 2))
sketch1.addConstraint(Sketcher.Constraint("Equal", 24, 31))
sketch1.addConstraint(Sketcher.Constraint("Equal", 0, 13))
sketch1.addConstraint(Sketcher.Constraint("Equal", 35, 15))
sketch1.addConstraint(Sketcher.Constraint("Equal", 33, 18))
sketch1.addConstraint(Sketcher.Constraint("Equal", 27, 25))
sketch1.addConstraint(Sketcher.Constraint("Equal", 49, 57))
sketch1.addConstraint(Sketcher.Constraint("Equal", 2, 5))
sketch1.addConstraint(Sketcher.Constraint("Equal", 5, 7))
sketch1.addConstraint(Sketcher.Constraint("Equal", 3, 10))
sketch1.addConstraint(Sketcher.Constraint("Equal", 7, 11))
sketch1.addConstraint(Sketcher.Constraint("Equal", 1, 12))
sketch1.addConstraint(Sketcher.Constraint("Equal", 47, 59))
sketch1.addConstraint(Sketcher.Constraint("Equal", 56, 60))
sketch1.addConstraint(Sketcher.Constraint("Equal", 55, 61))
sketch1.addConstraint(Sketcher.Constraint("Equal", 6, 67))
sketch1.addConstraint(Sketcher.Constraint("Equal", 59, 68))
sketch1.addConstraint(Sketcher.Constraint("Equal", 70, 74))
sketch1.addConstraint(Sketcher.Constraint("Equal", 69, 75))
sketch1.addConstraint(Sketcher.Constraint("Radius", 26, Q("0.185 in")))
sketch1.addConstraint(Sketcher.Constraint("Radius", 37, Q("0.125 in")))
sketch1.addConstraint(Sketcher.Constraint("Distance", 2, Q("0.06 in")))
sketch1.addConstraint(Sketcher.Constraint("Distance", 6, Q("0.25 in")))
sketch1.addConstraint(Sketcher.Constraint("DistanceX", 27, 1, 27, 2, Q("0.735 in")))
sketch1.addConstraint(Sketcher.Constraint("DistanceX", -1, 1, 30, 3, Q("0.52 in")))
sketch1.addConstraint(Sketcher.Constraint("Radius", 4, 1.942499))
sketch1.addConstraint(Sketcher.Constraint("DistanceX", 29, 2, 29, 1, Q("0.1495 in")))
sketch1.addConstraint(Sketcher.Constraint("DistanceY", 16, 3, -1, 1, Q("0.215 in")))
sketch1.addConstraint(Sketcher.Constraint("Distance", 3, Q("0.1495 in")))
sketch1.addConstraint(Sketcher.Constraint("DistanceX", -1, 1, 47, 2, Q("0.3505 in")))
sketch1.addConstraint(Sketcher.Constraint("DistanceX", 0, 2, 0, 1, 7.32461))
sketch1.addConstraint(Sketcher.Constraint("Distance", 1, 7.32461))
sketch1.addConstraint(Sketcher.Constraint("Distance", 47, 2.337781))
sketch1.addConstraint(Sketcher.Constraint("Distance", 55, 0.202409))
sketch1.addConstraint(Sketcher.Constraint("Distance", 69, 1.804608))
sketch1.addConstraint(Sketcher.Constraint("DistanceY", 4, 2, -1, 1, 12.751011))
sketch1.addConstraint(Sketcher.Constraint("DistanceX", -1, 1, 6, 2, 4.840358))
sketch1.addConstraint(Sketcher.Constraint("DistanceX", -1, 1, 40, 1, 0.70776))
sketch1.addConstraint(Sketcher.Constraint("DistanceX", -1, 1, 41, 1, 1.688111))
sketch1.addConstraint(Sketcher.Constraint("DistanceY", 42, 1, -1, 1, 16.980889))
sketch1.addConstraint(Sketcher.Constraint("DistanceX", -1, 1, 43, 1, 3.095109))
sketch1.addConstraint(Sketcher.Constraint("DistanceX", -1, 1, 53, 2, 4.694551))
sketch1.addConstraint(Sketcher.Constraint("DistanceY", 62, 2, -1, 1, 13.974449))
sketch1.addConstraint(Sketcher.Constraint("DistanceX", 38, 1, -1, 1, 2.245064))
sketch1.addConstraint(Sketcher.Constraint("DistanceX", -1, 1, 45, 1, 2.245064))
sketch1.setExpression("Constraints[197]", "Params.sketch1_radius")
sketch1.setExpression("Constraints[198]", "Params.sketch1_radius2")
sketch1.setExpression("Constraints[199]", "Params.sketch1_length")
sketch1.setExpression("Constraints[200]", "Params.sketch1_length2")
sketch1.setExpression("Constraints[201]", "Params.sketch1_width")
pad1 = body.newObject("PartDesign::Pad", "Pad")
pad1.Profile = sketch1
pad1.setExpression("Length", "Params.pad1_length")

doc.recompute()
